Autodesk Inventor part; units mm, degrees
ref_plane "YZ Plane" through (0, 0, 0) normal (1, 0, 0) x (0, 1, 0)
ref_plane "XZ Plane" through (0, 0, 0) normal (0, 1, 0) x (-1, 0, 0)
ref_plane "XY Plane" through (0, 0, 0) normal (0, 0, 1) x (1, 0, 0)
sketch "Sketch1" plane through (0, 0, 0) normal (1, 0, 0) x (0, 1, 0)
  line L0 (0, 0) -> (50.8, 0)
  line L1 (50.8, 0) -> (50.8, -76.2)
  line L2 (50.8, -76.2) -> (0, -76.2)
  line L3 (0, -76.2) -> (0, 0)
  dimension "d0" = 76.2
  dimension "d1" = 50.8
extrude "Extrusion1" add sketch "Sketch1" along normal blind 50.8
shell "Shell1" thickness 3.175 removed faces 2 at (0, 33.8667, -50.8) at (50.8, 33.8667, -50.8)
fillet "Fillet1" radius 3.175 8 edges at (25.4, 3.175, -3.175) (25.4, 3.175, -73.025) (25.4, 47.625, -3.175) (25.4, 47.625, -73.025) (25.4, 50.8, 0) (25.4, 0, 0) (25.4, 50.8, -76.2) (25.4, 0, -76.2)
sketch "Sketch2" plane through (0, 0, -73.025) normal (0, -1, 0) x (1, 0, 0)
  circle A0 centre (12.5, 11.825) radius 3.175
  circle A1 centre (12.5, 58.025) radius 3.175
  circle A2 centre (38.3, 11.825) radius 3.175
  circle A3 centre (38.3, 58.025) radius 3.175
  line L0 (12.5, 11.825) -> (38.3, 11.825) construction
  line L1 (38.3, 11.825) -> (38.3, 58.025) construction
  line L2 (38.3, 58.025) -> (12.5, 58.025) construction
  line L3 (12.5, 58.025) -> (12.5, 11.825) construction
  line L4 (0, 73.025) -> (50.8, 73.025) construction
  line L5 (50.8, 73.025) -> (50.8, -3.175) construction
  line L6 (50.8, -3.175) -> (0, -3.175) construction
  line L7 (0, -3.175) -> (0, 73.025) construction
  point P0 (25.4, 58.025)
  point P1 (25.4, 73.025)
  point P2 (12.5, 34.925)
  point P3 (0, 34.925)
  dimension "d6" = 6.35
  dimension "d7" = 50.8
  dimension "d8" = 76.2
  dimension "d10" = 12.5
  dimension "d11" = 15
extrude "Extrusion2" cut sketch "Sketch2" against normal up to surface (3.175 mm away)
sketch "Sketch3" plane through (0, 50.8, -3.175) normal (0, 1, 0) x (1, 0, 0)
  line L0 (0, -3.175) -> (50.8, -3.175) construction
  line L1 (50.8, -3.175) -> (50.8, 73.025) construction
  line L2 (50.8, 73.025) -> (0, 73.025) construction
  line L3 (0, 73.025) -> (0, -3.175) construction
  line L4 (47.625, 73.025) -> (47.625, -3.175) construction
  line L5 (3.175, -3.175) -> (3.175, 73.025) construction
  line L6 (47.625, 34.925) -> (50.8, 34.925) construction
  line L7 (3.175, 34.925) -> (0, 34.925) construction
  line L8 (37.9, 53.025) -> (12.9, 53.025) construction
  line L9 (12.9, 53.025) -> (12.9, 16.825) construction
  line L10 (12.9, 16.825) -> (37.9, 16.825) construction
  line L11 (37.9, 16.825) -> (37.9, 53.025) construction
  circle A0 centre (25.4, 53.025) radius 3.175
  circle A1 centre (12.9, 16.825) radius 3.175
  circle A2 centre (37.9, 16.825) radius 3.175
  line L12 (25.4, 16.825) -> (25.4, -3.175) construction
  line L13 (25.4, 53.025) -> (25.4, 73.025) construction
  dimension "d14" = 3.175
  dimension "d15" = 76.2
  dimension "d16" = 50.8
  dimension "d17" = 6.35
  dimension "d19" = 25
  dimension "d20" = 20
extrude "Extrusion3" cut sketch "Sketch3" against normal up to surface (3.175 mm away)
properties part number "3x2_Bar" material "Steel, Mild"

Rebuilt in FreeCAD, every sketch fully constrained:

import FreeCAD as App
import Part
import Sketcher

V = App.Vector
Q = App.Units.Quantity


def edges_at(feature, points):
    """Names of the edges that pass closest to the given points."""
    edges = feature.Shape.Edges
    near = lambda p: min(range(len(edges)), key=lambda i: edges[i].distToShape(Part.Vertex(*p))[0])
    return sorted({f"Edge{near(p) + 1}" for p in points})


def faces_at(feature, points):
    """Names of the faces that lie closest to the given points."""
    faces = feature.Shape.Faces
    near = lambda p: min(range(len(faces)), key=lambda i: faces[i].distToShape(Part.Vertex(*p))[0])
    return sorted({f"Face{near(p) + 1}" for p in points})

doc = App.newDocument("Part")
body = doc.addObject("PartDesign::Body", "Body")

# Sketch on YZ plane
sketch1 = body.newObject("Sketcher::SketchObject", "Sketch")
sketch1.AttachmentSupport = (doc.getObject("YZ_Plane"), [""])
sketch1.MapMode = "FlatFace"
sketch1.addGeometry([
    Part.LineSegment(V(50.8, 0, 0), V(0, 0, 0)),
    Part.LineSegment(V(0, 0, 0), V(0, -76.2, 0)),
    Part.LineSegment(V(0, -76.2, 0), V(50.8, -76.2, 0)),
    Part.LineSegment(V(50.8, -76.2, 0), V(50.8, 0, 0)),
], False)
sketch1.addConstraint([
    Sketcher.Constraint("Coincident", 0, 2, 1, 1),
    Sketcher.Constraint("Coincident", 1, 2, 2, 1),
    Sketcher.Constraint("Coincident", 2, 2, 3, 1),
    Sketcher.Constraint("Coincident", 3, 2, 0, 1),
    Sketcher.Constraint("Horizontal", 0),
    Sketcher.Constraint("Vertical", 1),
    Sketcher.Constraint("Horizontal", 2),
    Sketcher.Constraint("Vertical", 3),
    Sketcher.Constraint("Coincident", 0, 2, -1, 1),
    Sketcher.Constraint("DistanceX", 0, 2, 0, 1, Q("2 in")),
    Sketcher.Constraint("DistanceY", 1, 2, 1, 1, Q("3 in")),
])
pad1 = body.newObject("PartDesign::Pad", "Pad")
pad1.Profile = sketch1
pad1.Length = Q("2 in")
doc.recompute()

thickness = body.newObject("PartDesign::Thickness", "Thickness")
thickness.Base = (pad1, faces_at(pad1, [(0, 33.867, -50.8), (50.8, 33.867, -50.8)]))
thickness.Value = Q("0.125 in")
thickness.Reversed = True
thickness.Join = "Intersection"
doc.recompute()

fillet = body.newObject("PartDesign::Fillet", "Fillet")
fillet.Base = (thickness, edges_at(thickness, [
    (25.4, 3.175, -3.175),
    (25.4, 3.175, -73.025),
    (25.4, 47.625, -3.175),
    (25.4, 47.625, -73.025),
    (25.4, 50.8, 0),
    (25.4, 0, 0),
    (25.4, 50.8, -76.2),
    (25.4, 0, -76.2),
]))
fillet.Radius = Q("0.125 in")

# Sketch on XZ plane
sketch2 = body.newObject("Sketcher::SketchObject", "Sketch001")
sketch2.AttachmentSupport = (doc.getObject("XZ_Plane"), [""])
sketch2.MapMode = "FlatFace"
sketch2.addGeometry([
    Part.Circle(V(12.5, -61.2, 0), V(0, 0, 1), 3.175),
    Part.Circle(V(12.5, -15, 0), V(0, 0, 1), 3.175),
    Part.Circle(V(38.3, -61.2, 0), V(0, 0, 1), 3.175),
    Part.Circle(V(38.3, -15, 0), V(0, 0, 1), 3.175),
], False)
sketch2.addConstraint([
    Sketcher.Constraint("Equal", 0, 1),
    Sketcher.Constraint("Equal", 1, 2),
    Sketcher.Constraint("Equal", 2, 3),
    Sketcher.Constraint("Horizontal", 0, 3, 2, 3),
    Sketcher.Constraint("Horizontal", 1, 3, 3, 3),
    Sketcher.Constraint("Vertical", 0, 3, 1, 3),
    Sketcher.Constraint("Vertical", 2, 3, 3, 3),
    Sketcher.Constraint("Diameter", 0, Q("0.25 in")),
    Sketcher.Constraint("DistanceX", -1, 1, 0, 3, 12.5),
    Sketcher.Constraint("DistanceY", 1, 3, -1, 1, 15.0),
    Sketcher.Constraint("DistanceY", 0, 3, 1, 3, Q("1.8189 in")),
    Sketcher.Constraint("DistanceX", -1, 1, 2, 3, 38.3),
])
pocket1 = body.newObject("PartDesign::Pocket", "Pocket")
pocket1.Profile = sketch2
pocket1.Length = Q("0.125 in")

# Sketch on XZ plane
sketch3 = body.newObject("Sketcher::SketchObject", "Sketch002")
sketch3.AttachmentSupport = (doc.getObject("XZ_Plane"), [""])
sketch3.MapMode = "FlatFace"
sketch3.AttachmentOffset = App.Placement(V(0, 0, -2 * 25.4), App.Rotation())
sketch3.addGeometry([
    Part.Circle(V(25.4, -56.2, 0), V(0, 0, 1), 3.175),
    Part.Circle(V(12.9, -20, 0), V(0, 0, 1), 3.175),
    Part.Circle(V(37.9, -20, 0), V(0, 0, 1), 3.175),
], False)
sketch3.addConstraint([
    Sketcher.Constraint("Equal", 0, 1),
    Sketcher.Constraint("Equal", 1, 2),
    Sketcher.Constraint("Horizontal", 1, 3, 2, 3),
    Sketcher.Constraint("Diameter", 0, Q("0.25 in")),
    Sketcher.Constraint("DistanceX", -1, 1, 0, 3, Q("1 in")),
    Sketcher.Constraint("DistanceY", 1, 3, -1, 1, Q("0.7874 in")),
    Sketcher.Constraint("DistanceX", 1, 3, 2, 3, 25.0),
    Sketcher.Constraint("DistanceY", 0, 3, -1, 1, Q("2.2126 in")),
    Sketcher.Constraint("DistanceX", -1, 1, 1, 3, 12.9),
])
pocket2 = body.newObject("PartDesign::Pocket", "Pocket001")
pocket2.Profile = sketch3
pocket2.Length = Q("0.125 in")
pocket2.Reversed = True

doc.recompute()
